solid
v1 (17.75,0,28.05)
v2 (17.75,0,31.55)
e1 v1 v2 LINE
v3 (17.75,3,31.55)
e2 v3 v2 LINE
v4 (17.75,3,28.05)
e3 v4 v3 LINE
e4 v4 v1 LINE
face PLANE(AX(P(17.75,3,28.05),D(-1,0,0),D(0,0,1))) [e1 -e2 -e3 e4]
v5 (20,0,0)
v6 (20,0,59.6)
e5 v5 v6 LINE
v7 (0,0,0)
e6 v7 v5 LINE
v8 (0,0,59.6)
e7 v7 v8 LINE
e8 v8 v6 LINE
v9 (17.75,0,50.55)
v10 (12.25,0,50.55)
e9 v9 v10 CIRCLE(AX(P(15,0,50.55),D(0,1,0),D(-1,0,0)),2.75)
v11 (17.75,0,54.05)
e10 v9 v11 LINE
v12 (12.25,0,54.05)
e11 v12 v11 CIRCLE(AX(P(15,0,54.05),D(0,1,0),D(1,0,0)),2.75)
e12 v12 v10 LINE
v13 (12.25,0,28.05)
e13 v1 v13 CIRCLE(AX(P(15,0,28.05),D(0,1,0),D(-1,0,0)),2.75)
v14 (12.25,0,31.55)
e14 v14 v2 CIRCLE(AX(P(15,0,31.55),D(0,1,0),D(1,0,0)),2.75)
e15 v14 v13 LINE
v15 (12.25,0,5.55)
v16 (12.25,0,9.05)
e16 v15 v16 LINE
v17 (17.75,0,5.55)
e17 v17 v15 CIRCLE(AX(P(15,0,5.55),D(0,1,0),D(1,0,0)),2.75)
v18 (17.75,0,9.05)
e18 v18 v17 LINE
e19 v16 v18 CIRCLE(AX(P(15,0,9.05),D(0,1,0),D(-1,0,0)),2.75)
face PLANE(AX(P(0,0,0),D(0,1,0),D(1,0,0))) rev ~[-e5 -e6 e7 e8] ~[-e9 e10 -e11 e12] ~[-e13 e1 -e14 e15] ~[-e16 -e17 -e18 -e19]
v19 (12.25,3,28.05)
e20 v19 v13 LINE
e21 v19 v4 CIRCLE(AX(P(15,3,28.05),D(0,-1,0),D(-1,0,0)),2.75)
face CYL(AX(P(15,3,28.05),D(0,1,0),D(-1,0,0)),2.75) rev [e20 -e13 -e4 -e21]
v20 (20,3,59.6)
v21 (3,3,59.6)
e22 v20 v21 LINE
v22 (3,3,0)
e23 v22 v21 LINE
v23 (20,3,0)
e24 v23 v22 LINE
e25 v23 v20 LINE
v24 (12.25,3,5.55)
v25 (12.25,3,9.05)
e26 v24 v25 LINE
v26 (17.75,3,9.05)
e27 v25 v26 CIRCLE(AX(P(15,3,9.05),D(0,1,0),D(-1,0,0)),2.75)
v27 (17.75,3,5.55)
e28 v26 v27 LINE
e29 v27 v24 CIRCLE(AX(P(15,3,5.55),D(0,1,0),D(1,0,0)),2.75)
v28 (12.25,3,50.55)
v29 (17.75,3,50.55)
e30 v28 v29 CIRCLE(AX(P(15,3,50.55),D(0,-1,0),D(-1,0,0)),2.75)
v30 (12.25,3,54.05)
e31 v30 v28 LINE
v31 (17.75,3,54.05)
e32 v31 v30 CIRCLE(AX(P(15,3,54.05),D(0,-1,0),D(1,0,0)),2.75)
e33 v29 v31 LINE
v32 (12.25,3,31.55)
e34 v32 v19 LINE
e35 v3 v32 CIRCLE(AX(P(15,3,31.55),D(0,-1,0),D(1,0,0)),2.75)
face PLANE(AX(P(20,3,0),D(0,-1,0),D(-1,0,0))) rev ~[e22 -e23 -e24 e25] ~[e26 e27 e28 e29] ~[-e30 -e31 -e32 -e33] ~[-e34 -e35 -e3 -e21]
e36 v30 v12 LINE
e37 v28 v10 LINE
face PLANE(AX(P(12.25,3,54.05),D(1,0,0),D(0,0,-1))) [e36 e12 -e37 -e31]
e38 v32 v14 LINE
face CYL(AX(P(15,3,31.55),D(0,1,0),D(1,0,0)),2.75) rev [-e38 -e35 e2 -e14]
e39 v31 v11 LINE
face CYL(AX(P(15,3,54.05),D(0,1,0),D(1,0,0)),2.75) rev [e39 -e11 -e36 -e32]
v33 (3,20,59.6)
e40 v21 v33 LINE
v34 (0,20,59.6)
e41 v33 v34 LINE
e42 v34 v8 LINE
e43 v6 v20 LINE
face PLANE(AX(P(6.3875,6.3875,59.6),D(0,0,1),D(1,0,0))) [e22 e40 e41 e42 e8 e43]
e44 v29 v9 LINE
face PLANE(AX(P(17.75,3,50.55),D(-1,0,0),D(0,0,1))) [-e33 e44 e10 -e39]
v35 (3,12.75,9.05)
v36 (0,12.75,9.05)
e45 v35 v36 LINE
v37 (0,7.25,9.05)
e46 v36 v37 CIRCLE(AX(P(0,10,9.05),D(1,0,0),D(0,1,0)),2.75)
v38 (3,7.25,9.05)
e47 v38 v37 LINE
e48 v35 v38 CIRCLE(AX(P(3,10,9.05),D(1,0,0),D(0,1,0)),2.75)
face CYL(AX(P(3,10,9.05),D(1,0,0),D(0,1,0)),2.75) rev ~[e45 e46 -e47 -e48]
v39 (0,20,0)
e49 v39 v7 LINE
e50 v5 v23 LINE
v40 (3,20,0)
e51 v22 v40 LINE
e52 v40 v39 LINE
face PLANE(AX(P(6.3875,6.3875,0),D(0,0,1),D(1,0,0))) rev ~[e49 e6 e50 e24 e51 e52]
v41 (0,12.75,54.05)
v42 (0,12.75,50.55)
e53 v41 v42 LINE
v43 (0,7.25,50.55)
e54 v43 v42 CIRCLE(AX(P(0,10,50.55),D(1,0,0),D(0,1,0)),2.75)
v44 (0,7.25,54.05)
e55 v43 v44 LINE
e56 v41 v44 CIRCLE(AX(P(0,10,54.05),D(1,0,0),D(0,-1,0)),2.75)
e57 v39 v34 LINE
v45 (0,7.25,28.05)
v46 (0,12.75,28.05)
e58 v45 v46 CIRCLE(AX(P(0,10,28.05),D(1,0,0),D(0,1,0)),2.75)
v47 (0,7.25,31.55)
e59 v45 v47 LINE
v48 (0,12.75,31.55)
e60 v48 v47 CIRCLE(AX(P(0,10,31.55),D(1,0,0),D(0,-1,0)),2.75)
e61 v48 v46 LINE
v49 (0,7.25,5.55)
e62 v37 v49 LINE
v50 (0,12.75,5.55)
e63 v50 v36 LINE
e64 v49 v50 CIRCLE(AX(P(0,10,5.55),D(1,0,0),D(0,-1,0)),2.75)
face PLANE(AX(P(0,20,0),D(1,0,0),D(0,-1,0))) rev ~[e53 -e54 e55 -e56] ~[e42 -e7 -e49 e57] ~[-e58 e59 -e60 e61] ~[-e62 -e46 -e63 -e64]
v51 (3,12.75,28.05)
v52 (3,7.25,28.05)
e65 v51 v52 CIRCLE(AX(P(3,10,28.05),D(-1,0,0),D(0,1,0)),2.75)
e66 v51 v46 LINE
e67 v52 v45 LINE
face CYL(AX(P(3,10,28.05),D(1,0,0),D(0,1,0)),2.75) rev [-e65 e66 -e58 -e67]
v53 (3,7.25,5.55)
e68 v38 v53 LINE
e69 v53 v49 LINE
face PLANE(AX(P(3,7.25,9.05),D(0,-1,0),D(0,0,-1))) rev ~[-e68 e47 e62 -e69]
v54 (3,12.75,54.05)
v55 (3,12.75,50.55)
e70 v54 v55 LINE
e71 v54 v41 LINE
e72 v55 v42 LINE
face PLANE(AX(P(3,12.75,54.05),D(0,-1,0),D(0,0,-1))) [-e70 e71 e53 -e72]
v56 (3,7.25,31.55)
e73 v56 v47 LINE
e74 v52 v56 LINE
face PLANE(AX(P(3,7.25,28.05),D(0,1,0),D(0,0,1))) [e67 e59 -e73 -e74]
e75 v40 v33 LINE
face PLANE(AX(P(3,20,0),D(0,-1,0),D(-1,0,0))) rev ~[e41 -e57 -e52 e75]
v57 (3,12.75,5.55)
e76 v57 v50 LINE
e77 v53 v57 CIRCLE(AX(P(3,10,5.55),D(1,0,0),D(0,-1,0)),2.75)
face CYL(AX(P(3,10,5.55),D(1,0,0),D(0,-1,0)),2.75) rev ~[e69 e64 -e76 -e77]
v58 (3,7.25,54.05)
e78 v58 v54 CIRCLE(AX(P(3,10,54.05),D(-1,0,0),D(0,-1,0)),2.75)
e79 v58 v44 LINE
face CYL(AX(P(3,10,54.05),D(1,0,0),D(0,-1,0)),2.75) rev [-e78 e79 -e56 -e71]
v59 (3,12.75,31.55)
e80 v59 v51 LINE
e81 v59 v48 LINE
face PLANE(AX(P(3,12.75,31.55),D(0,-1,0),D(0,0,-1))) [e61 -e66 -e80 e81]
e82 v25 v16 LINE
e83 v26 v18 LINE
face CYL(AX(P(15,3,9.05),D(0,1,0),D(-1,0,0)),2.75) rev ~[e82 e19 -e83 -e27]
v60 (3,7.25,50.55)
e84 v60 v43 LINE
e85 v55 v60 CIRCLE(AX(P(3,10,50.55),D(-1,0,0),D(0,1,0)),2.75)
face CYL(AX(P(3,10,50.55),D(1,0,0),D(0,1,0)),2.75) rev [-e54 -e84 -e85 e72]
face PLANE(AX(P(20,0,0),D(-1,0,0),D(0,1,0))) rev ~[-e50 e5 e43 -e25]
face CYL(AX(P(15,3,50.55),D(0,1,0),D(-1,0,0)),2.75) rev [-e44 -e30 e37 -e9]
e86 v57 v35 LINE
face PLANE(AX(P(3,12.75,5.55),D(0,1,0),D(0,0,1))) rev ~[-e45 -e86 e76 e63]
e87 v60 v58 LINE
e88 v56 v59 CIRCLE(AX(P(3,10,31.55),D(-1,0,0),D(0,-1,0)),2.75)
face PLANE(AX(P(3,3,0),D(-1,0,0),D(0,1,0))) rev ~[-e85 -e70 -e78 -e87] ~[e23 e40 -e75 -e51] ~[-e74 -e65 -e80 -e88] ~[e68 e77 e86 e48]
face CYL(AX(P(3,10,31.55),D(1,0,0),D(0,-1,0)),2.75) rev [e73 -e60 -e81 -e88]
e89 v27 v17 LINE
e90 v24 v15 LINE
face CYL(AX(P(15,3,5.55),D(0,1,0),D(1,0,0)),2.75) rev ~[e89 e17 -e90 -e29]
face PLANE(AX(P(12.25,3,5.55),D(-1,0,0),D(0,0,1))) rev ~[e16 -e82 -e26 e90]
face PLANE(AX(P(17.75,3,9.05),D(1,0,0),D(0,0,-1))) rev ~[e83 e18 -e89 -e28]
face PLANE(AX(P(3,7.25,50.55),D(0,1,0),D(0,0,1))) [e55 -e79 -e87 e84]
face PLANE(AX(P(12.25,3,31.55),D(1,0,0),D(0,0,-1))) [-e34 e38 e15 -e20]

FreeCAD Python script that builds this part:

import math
import FreeCAD as App
import Part
import Sketcher


def add_polygon(sketch, points):
    """Adds a closed chain of lines whose ends are joined by coincident constraints."""
    first, n = sketch.GeometryCount, len(points)
    for a, b in zip(points, points[1:] + points[:1]):
        sketch.addGeometry(Part.LineSegment(App.Vector(*a, 0), App.Vector(*b, 0)), False)
    for i in range(n):
        sketch.addConstraint(Sketcher.Constraint("Coincident", first + i, 2, first + (i + 1) % n, 1))

doc = App.newDocument("Part")
params = doc.addObject("Spreadsheet::Sheet", "Params")
for row, (alias, value) in enumerate([
    ("sketch1_width", "20 mm"),
    ("sketch1_width2", "17 mm"),
    ("pad1_length", "59.6 mm"),
    ("sketch2_radius", "2.75 mm"),
    ("sketch2_height", "3.5 mm"),
    ("sketch3_radius", "2.75 mm"),
    ("sketch3_height", "3.5 mm"),
], start=1):
    params.set(f"A{row}", alias)
    params.set(f"B{row}", "=" + value)
    params.setAlias(f"B{row}", alias)

body = doc.addObject("PartDesign::Body", "Body")

# Sketch on XY plane
sketch1 = doc.addObject("Sketcher::SketchObject", "Sketch")
body.addObject(sketch1)
sketch1.AttachmentSupport = (doc.XY_Plane, [""])
sketch1.MapMode = "FlatFace"
add_polygon(sketch1, [(0, 20), (0, 0), (20, 0), (20, 3), (3, 3), (3, 20)])  # lines 0-5
sketch1.addConstraint([
    Sketcher.Constraint("Vertical", 0),
    Sketcher.Constraint("Horizontal", 1),
    Sketcher.Constraint("Vertical", 2),
    Sketcher.Constraint("Horizontal", 3),
    Sketcher.Constraint("Vertical", 4),
    Sketcher.Constraint("Horizontal", 5),
    Sketcher.Constraint("Coincident", 0, 2, -1, 1),
    Sketcher.Constraint("Equal", 1, 0),
    Sketcher.Constraint("Equal", 5, 2),
    Sketcher.Constraint("DistanceX", 1, 1, 1, 2, 20.0),
    Sketcher.Constraint("DistanceX", 3, 2, 3, 1, 17.0),
])
sketch1.setExpression("Constraints[15]", "Params.sketch1_width")
sketch1.setExpression("Constraints[16]", "Params.sketch1_width2")
pad1 = doc.addObject("PartDesign::Pad", "Pad")
body.addObject(pad1)
pad1.Profile = sketch1
pad1.setExpression("Length", "Params.pad1_length")

# Sketch on YZ plane
sketch2 = doc.addObject("Sketcher::SketchObject", "Sketch001")
body.addObject(sketch2)
sketch2.AttachmentSupport = (doc.YZ_Plane, [""])
sketch2.MapMode = "FlatFace"
sketch2.AttachmentOffset = App.Placement(App.Vector(0, 0, 3), App.Rotation())
sketch2.addGeometry([
    Part.LineSegment(App.Vector(7.25, 54.05, 0), App.Vector(7.25, 50.55, 0)),  # 0
    Part.ArcOfCircle(Part.Circle(App.Vector(10, 50.55, 0), App.Vector(0, 0, 1), 2.75), math.radians(180), math.radians(360)),  # 1
    Part.LineSegment(App.Vector(12.75, 50.55, 0), App.Vector(12.75, 54.05, 0)),  # 2
    Part.ArcOfCircle(Part.Circle(App.Vector(10, 54.05, 0), App.Vector(0, 0, 1), 2.75), math.radians(0), math.radians(180)),  # 3
    Part.LineSegment(App.Vector(7.25, 9.05, 0), App.Vector(7.25, 5.55, 0)),  # 4
    Part.ArcOfCircle(Part.Circle(App.Vector(10, 5.55, 0), App.Vector(0, 0, 1), 2.75), math.radians(180), math.radians(360)),  # 5
    Part.LineSegment(App.Vector(12.75, 5.55, 0), App.Vector(12.75, 9.05, 0)),  # 6
    Part.ArcOfCircle(Part.Circle(App.Vector(10, 9.05, 0), App.Vector(0, 0, 1), 2.75), math.radians(0), math.radians(180)),  # 7
    Part.LineSegment(App.Vector(7.25, 31.55, 0), App.Vector(7.25, 28.05, 0)),  # 8
    Part.ArcOfCircle(Part.Circle(App.Vector(10, 28.05, 0), App.Vector(0, 0, 1), 2.75), math.radians(180), math.radians(360)),  # 9
    Part.LineSegment(App.Vector(12.75, 28.05, 0), App.Vector(12.75, 31.55, 0)),  # 10
    Part.ArcOfCircle(Part.Circle(App.Vector(10, 31.55, 0), App.Vector(0, 0, 1), 2.75), math.radians(0), math.radians(180)),  # 11
], False)
sketch2.addConstraint([
    Sketcher.Constraint("Tangent", 0, 2, 1, 1),
    Sketcher.Constraint("Tangent", 1, 2, 2, 1),
    Sketcher.Constraint("Tangent", 2, 2, 3, 1),
    Sketcher.Constraint("Tangent", 3, 2, 0, 1),
    Sketcher.Constraint("Tangent", 4, 2, 5, 1),
    Sketcher.Constraint("Tangent", 5, 2, 6, 1),
    Sketcher.Constraint("Tangent", 6, 2, 7, 1),
    Sketcher.Constraint("Tangent", 7, 2, 4, 1),
    Sketcher.Constraint("Tangent", 8, 2, 9, 1),
    Sketcher.Constraint("Tangent", 9, 2, 10, 1),
    Sketcher.Constraint("Tangent", 10, 2, 11, 1),
    Sketcher.Constraint("Tangent", 11, 2, 8, 1),
    Sketcher.Constraint("Vertical", 0),
    Sketcher.Constraint("Vertical", 2),
    Sketcher.Constraint("Vertical", 4),
    Sketcher.Constraint("Vertical", 6),
    Sketcher.Constraint("Vertical", 8),
    Sketcher.Constraint("Vertical", 10),
    Sketcher.Constraint("Equal", 3, 5),
    Sketcher.Constraint("Equal", 7, 9),
    Sketcher.Constraint("Vertical", 3, 3, 5, 3),
    Sketcher.Constraint("Vertical", 7, 3, 9, 3),
    Sketcher.Constraint("Equal", 2, 4),
    Sketcher.Constraint("Equal", 6, 8),
    Sketcher.Constraint("Radius", 1, 2.75),
    Sketcher.Constraint("DistanceY", 0, 2, 0, 1, 3.5),
    Sketcher.Constraint("DistanceX", -1, 1, 1, 3, 10.0),
    Sketcher.Constraint("DistanceY", 5, 3, 1, 3, 45.0),
    Sketcher.Constraint("DistanceY", 7, 3, 9, 3, 19.0),
    Sketcher.Constraint("DistanceY", -1, 1, 1, 3, 50.55),
])
sketch2.setExpression("Constraints[24]", "Params.sketch2_radius")
sketch2.setExpression("Constraints[25]", "Params.sketch2_height")
pocket1 = doc.addObject("PartDesign::Pocket", "Pocket")
body.addObject(pocket1)
pocket1.Profile = sketch2
pocket1.Type = "ThroughAll"

# Sketch on XZ plane
sketch3 = doc.addObject("Sketcher::SketchObject", "Sketch002")
body.addObject(sketch3)
sketch3.AttachmentSupport = (doc.XZ_Plane, [""])
sketch3.MapMode = "FlatFace"
sketch3.AttachmentOffset = App.Placement(App.Vector(0, 0, -3), App.Rotation())
sketch3.addGeometry([
    Part.LineSegment(App.Vector(12.25, 50.55, 0), App.Vector(12.25, 54.05, 0)),  # 0
    Part.ArcOfCircle(Part.Circle(App.Vector(15, 54.05, 0), App.Vector(0, 0, 1), 2.75), math.radians(0), math.radians(180)),  # 1
    Part.LineSegment(App.Vector(17.75, 54.05, 0), App.Vector(17.75, 50.55, 0)),  # 2
    Part.ArcOfCircle(Part.Circle(App.Vector(15, 50.55, 0), App.Vector(0, 0, 1), 2.75), math.radians(180), math.radians(360)),  # 3
    Part.LineSegment(App.Vector(12.25, 5.55, 0), App.Vector(12.25, 9.05, 0)),  # 4
    Part.ArcOfCircle(Part.Circle(App.Vector(15, 9.05, 0), App.Vector(0, 0, 1), 2.75), math.radians(0), math.radians(180)),  # 5
    Part.LineSegment(App.Vector(17.75, 9.05, 0), App.Vector(17.75, 5.55, 0)),  # 6
    Part.ArcOfCircle(Part.Circle(App.Vector(15, 5.55, 0), App.Vector(0, 0, 1), 2.75), math.radians(180), math.radians(360)),  # 7
    Part.LineSegment(App.Vector(17.75, 31.55, 0), App.Vector(17.75, 28.05, 0)),  # 8
    Part.ArcOfCircle(Part.Circle(App.Vector(15, 28.05, 0), App.Vector(0, 0, 1), 2.75), math.radians(180), math.radians(360)),  # 9
    Part.LineSegment(App.Vector(12.25, 28.05, 0), App.Vector(12.25, 31.55, 0)),  # 10
    Part.ArcOfCircle(Part.Circle(App.Vector(15, 31.55, 0), App.Vector(0, 0, 1), 2.75), math.radians(0), math.radians(180)),  # 11
], False)
sketch3.addConstraint([
    Sketcher.Constraint("Tangent", 0, 2, 1, 2),
    Sketcher.Constraint("Tangent", 1, 1, 2, 1),
    Sketcher.Constraint("Tangent", 2, 2, 3, 2),
    Sketcher.Constraint("Tangent", 3, 1, 0, 1),
    Sketcher.Constraint("Tangent", 4, 2, 5, 2),
    Sketcher.Constraint("Tangent", 5, 1, 6, 1),
    Sketcher.Constraint("Tangent", 6, 2, 7, 2),
    Sketcher.Constraint("Tangent", 7, 1, 4, 1),
    Sketcher.Constraint("Tangent", 8, 2, 9, 2),
    Sketcher.Constraint("Tangent", 9, 1, 10, 1),
    Sketcher.Constraint("Tangent", 10, 2, 11, 2),
    Sketcher.Constraint("Tangent", 11, 1, 8, 1),
    Sketcher.Constraint("Vertical", 0),
    Sketcher.Constraint("Vertical", 2),
    Sketcher.Constraint("Vertical", 4),
    Sketcher.Constraint("Vertical", 6),
    Sketcher.Constraint("Vertical", 8),
    Sketcher.Constraint("Vertical", 10),
    Sketcher.Constraint("Equal", 3, 5),
    Sketcher.Constraint("Equal", 7, 9),
    Sketcher.Constraint("Vertical", 3, 3, 5, 3),
    Sketcher.Constraint("Vertical", 7, 3, 9, 3),
    Sketcher.Constraint("Equal", 2, 4),
    Sketcher.Constraint("Equal", 6, 8),
    Sketcher.Constraint("Radius", 1, 2.75),
    Sketcher.Constraint("DistanceY", 0, 1, 0, 2, 3.5),
    Sketcher.Constraint("DistanceX", -1, 1, 1, 3, 15.0),
    Sketcher.Constraint("DistanceY", 5, 3, 1, 3, 45.0),
    Sketcher.Constraint("DistanceY", 5, 3, 9, 3, 19.0),
    Sketcher.Constraint("DistanceY", -1, 1, 1, 3, 54.05),
])
sketch3.setExpression("Constraints[24]", "Params.sketch3_radius")
sketch3.setExpression("Constraints[25]", "Params.sketch3_height")
pocket2 = doc.addObject("PartDesign::Pocket", "Pocket001")
body.addObject(pocket2)
pocket2.Profile = sketch3
pocket2.Type = "ThroughAll"
pocket2.Reversed = True

doc.recompute()
